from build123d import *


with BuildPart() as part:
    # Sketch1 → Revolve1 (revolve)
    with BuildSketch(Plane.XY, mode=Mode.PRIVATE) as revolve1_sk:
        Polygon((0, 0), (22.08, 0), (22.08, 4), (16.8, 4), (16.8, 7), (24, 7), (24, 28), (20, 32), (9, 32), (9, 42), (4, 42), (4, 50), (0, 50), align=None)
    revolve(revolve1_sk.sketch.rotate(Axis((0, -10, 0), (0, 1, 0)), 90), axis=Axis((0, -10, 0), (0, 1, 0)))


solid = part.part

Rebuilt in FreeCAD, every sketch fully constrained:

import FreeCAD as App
import Part
import Sketcher
Q = App.Units.Quantity


def add_polygon(sketch, points):
    """Adds a closed chain of lines whose ends are joined by coincident constraints."""
    first, n = sketch.GeometryCount, len(points)
    for a, b in zip(points, points[1:] + points[:1]):
        sketch.addGeometry(Part.LineSegment(App.Vector(*a, 0), App.Vector(*b, 0)), False)
    for i in range(n):
        sketch.addConstraint(Sketcher.Constraint("Coincident", first + i, 2, first + (i + 1) % n, 1))

doc = App.newDocument("Part")
body = doc.addObject("PartDesign::Body", "Body")

# Sketch on XY plane
sketch1 = body.newObject("Sketcher::SketchObject", "Sketch")
sketch1.AttachmentSupport = (doc.getObject("XY_Plane"), [""])
sketch1.MapMode = "FlatFace"
add_polygon(sketch1, [(0, 0), (22.1, 0), (22.1, 4), (16.8, 4), (16.8, 7), (24, 7), (24, 28), (20, 32), (9, 32), (9, 42), (4, 42), (4, 50), (0, 50)])  # lines 0-12
sketch1.addConstraint(Sketcher.Constraint("Horizontal", 0))
sketch1.addConstraint(Sketcher.Constraint("Vertical", 1))
sketch1.addConstraint(Sketcher.Constraint("Horizontal", 2))
sketch1.addConstraint(Sketcher.Constraint("Vertical", 3))
sketch1.addConstraint(Sketcher.Constraint("Horizontal", 4))
sketch1.addConstraint(Sketcher.Constraint("Vertical", 5))
sketch1.addConstraint(Sketcher.Constraint("Horizontal", 7))
sketch1.addConstraint(Sketcher.Constraint("Vertical", 8))
sketch1.addConstraint(Sketcher.Constraint("Horizontal", 9))
sketch1.addConstraint(Sketcher.Constraint("Vertical", 10))
sketch1.addConstraint(Sketcher.Constraint("Horizontal", 11))
sketch1.addConstraint(Sketcher.Constraint("Vertical", 12))
sketch1.addConstraint(Sketcher.Constraint("Coincident", 12, 2, -1, 1))
sketch1.addConstraint(Sketcher.Constraint("Equal", 11, 1))
sketch1.addConstraint(Sketcher.Constraint("DistanceX", 7, 2, 7, 1, 11.0))
sketch1.addConstraint(Sketcher.Constraint("DistanceX", 9, 2, 9, 1, 5.0))
sketch1.addConstraint(Sketcher.Constraint("DistanceX", 11, 2, 11, 1, 4.0))
sketch1.addConstraint(Sketcher.Constraint("DistanceY", 3, 1, 3, 2, 3.0))
sketch1.addConstraint(Sketcher.Constraint("DistanceY", 5, 1, 5, 2, 21.0))
sketch1.addConstraint(Sketcher.Constraint("DistanceY", 8, 1, 8, 2, 10.0))
sketch1.addConstraint(Sketcher.Constraint("DistanceY", 10, 1, 10, 2, 8.0))
sketch1.addConstraint(Sketcher.Constraint("DistanceY", 12, 2, 12, 1, 50.0))
sketch1.addConstraint(Sketcher.Constraint("Angle", 6, Q("135 deg")))
sketch1.addConstraint(Sketcher.Constraint("DistanceX", 4, 1, 4, 2, 7.2))
sketch1.addConstraint(Sketcher.Constraint("DistanceX", 0, 1, 0, 2, 22.08))
revolution = body.newObject("PartDesign::Revolution", "Revolution")
revolution.Profile = sketch1
revolution.ReferenceAxis = (sketch1, ["V_Axis"])
revolution.Angle = 360

doc.recompute()
